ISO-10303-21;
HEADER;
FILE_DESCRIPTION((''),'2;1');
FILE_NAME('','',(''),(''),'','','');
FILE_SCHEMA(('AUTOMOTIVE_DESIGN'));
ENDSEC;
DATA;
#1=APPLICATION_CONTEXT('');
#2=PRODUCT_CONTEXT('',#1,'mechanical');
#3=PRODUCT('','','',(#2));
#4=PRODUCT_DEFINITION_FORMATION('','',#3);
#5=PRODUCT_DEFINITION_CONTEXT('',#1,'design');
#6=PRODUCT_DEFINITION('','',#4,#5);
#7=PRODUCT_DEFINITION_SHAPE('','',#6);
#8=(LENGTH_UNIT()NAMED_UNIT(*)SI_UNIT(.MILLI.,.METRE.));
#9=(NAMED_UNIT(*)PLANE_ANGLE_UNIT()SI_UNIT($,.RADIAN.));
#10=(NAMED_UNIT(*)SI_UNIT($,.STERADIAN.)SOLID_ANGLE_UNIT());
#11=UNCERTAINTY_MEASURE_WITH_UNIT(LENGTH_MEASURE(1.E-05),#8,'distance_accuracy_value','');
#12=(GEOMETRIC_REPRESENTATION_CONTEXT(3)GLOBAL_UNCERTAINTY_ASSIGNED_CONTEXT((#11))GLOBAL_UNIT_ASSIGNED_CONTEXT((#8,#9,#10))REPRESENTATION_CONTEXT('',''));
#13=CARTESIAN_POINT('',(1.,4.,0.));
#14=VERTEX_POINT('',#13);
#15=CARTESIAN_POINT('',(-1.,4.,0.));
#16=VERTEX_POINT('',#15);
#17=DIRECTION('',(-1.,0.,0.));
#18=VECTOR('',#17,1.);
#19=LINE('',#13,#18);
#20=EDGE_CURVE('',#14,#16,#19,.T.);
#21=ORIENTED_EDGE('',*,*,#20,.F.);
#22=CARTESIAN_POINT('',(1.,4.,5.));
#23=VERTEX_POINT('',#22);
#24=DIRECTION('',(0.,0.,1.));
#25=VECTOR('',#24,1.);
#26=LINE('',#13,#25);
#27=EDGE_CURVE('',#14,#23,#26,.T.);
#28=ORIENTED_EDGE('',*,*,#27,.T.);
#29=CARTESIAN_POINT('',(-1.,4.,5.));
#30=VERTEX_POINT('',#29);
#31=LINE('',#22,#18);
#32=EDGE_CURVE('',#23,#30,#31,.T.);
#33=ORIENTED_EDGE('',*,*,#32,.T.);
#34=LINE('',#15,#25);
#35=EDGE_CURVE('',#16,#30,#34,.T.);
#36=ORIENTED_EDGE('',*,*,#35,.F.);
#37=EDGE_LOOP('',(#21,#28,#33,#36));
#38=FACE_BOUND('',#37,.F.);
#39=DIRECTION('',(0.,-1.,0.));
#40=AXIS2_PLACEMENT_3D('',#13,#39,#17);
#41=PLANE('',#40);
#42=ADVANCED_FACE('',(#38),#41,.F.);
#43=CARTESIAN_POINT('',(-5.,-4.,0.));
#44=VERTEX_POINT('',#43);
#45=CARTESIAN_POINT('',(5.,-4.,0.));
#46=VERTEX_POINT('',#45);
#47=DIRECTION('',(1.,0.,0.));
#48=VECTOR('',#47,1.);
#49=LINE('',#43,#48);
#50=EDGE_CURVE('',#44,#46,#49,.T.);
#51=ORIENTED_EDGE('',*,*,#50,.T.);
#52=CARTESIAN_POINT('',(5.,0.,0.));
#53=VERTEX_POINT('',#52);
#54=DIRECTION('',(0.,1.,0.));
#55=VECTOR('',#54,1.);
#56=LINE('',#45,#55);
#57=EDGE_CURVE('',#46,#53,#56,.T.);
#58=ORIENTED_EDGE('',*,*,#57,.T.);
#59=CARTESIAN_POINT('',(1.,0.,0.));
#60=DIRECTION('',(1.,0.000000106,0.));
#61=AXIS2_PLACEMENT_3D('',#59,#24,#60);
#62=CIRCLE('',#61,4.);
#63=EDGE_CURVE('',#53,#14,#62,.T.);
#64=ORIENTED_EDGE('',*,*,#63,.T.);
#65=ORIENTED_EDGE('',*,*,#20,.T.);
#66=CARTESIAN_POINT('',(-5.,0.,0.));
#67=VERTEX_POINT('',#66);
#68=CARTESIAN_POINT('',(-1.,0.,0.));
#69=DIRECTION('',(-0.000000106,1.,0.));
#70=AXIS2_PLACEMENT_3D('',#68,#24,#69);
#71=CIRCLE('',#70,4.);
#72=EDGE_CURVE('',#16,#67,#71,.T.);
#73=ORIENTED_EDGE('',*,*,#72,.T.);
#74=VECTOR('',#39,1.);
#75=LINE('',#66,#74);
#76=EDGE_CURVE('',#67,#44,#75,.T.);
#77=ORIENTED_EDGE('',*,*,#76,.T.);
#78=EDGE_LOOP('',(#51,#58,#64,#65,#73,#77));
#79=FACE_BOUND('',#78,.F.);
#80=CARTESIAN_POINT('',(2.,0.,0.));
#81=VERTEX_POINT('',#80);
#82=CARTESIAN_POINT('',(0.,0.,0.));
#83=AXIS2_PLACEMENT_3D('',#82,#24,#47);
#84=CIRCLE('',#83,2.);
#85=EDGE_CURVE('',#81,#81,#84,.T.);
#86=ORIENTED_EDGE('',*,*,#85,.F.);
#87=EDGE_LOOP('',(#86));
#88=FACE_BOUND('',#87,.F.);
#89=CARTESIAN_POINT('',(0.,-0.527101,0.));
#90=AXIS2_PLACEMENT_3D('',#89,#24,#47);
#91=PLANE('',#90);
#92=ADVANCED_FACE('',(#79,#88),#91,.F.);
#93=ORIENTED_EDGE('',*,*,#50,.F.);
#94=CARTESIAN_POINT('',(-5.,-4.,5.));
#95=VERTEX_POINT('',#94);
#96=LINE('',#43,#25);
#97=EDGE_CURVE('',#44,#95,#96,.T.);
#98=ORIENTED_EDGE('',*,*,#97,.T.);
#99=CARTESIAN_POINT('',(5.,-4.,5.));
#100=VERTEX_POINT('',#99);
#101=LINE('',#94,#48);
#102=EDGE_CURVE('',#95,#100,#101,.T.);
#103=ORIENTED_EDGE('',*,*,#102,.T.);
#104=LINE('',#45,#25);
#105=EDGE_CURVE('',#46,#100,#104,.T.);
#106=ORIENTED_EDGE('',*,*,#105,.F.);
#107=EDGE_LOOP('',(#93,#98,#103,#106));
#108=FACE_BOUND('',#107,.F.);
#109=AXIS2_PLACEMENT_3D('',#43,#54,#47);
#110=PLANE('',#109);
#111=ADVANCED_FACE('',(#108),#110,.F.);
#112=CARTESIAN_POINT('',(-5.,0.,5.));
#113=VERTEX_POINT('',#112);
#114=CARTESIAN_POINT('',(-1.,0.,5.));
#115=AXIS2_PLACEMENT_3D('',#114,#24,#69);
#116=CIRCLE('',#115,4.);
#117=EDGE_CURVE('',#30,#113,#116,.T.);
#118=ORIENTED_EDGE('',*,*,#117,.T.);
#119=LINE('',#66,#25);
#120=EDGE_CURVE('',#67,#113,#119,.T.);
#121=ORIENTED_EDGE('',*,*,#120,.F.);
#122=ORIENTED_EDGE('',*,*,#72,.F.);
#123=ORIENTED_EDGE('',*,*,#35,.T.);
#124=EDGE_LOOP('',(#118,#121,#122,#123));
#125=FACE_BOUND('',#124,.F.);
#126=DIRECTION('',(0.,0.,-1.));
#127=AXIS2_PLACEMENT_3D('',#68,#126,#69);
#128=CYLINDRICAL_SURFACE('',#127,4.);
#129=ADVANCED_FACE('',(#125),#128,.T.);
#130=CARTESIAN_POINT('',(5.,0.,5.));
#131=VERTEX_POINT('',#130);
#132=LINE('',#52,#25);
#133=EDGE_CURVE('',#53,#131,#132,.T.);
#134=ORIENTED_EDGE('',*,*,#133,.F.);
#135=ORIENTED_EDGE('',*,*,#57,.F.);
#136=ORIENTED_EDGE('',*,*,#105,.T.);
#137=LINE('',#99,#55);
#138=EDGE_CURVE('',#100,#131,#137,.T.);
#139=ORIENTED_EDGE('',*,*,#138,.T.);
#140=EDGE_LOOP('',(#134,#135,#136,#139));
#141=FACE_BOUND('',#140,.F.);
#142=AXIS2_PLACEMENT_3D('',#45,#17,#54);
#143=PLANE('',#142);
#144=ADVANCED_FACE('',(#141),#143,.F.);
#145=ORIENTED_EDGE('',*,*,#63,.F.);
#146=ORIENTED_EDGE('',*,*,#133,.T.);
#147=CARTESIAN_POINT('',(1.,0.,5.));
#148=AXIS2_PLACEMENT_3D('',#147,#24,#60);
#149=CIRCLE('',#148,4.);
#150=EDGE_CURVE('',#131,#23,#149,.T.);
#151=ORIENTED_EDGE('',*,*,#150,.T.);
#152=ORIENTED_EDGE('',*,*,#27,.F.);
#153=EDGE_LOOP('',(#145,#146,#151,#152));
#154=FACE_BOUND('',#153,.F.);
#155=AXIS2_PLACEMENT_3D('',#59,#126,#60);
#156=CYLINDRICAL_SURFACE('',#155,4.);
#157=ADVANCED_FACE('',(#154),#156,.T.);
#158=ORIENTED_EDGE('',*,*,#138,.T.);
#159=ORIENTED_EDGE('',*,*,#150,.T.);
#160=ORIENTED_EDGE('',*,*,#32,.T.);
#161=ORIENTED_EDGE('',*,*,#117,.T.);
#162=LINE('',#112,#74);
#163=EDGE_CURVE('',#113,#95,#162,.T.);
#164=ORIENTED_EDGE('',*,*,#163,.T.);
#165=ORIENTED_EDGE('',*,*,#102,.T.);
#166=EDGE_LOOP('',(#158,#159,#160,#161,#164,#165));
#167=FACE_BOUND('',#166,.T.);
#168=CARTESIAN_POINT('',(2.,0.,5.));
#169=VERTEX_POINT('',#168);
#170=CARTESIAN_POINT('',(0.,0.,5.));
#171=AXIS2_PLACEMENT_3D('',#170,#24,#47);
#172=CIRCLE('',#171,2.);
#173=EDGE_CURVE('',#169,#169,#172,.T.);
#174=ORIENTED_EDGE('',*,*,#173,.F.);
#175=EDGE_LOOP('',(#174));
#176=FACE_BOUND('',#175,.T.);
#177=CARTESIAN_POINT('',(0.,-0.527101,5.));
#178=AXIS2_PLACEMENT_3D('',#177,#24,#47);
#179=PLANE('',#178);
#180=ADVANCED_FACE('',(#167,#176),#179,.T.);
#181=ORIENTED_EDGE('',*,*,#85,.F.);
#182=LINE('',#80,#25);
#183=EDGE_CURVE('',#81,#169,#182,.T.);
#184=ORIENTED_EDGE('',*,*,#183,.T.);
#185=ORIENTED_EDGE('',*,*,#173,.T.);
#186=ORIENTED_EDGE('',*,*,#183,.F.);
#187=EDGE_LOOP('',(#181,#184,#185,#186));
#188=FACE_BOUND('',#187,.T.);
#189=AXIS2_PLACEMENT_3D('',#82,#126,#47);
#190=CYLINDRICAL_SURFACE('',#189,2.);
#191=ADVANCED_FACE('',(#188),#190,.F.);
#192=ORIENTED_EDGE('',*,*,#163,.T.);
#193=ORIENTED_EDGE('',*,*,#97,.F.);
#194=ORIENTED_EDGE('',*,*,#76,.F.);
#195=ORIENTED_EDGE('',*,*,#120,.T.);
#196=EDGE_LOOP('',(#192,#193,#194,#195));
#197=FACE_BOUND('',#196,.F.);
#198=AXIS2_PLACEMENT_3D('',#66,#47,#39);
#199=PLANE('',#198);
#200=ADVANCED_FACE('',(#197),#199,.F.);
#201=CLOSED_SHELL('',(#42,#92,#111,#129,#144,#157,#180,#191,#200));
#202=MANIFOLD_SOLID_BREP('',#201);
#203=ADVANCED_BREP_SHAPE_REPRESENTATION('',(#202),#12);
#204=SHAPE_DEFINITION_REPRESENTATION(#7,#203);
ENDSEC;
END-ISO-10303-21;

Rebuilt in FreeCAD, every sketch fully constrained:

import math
import FreeCAD as App
import Part
import Sketcher

doc = App.newDocument("Part")
body = doc.addObject("PartDesign::Body", "Body")

sketch1 = body.newObject("Sketcher::SketchObject", "Sketch")
sketch1.AttachmentSupport = (doc.getObject("XY_Plane"), [""])
sketch1.MapMode = "FlatFace"
sketch1.addGeometry(Part.LineSegment(App.Vector(-5, -4, 0), App.Vector(5, -4, 0)), False)
sketch1.addGeometry(Part.LineSegment(App.Vector(5, -4, 0), App.Vector(5, 0, 0)), False)
sketch1.addGeometry(Part.ArcOfCircle(Part.Circle(App.Vector(1, 0, 0), App.Vector(0, 0, 1), 4), math.radians(0), math.radians(90)), False)
sketch1.addGeometry(Part.LineSegment(App.Vector(1, 4, 0), App.Vector(-1, 4, 0)), False)
sketch1.addGeometry(Part.ArcOfCircle(Part.Circle(App.Vector(-1, 0, 0), App.Vector(0, 0, 1), 4), math.radians(90), math.radians(180)), False)
sketch1.addGeometry(Part.LineSegment(App.Vector(-5, 0, 0), App.Vector(-5, -4, 0)), False)
sketch1.addGeometry(Part.Circle(App.Vector(0, 0, 0), App.Vector(0, 0, 1), 2), False)
sketch1.addConstraint(Sketcher.Constraint("Coincident", 0, 2, 1, 1))
sketch1.addConstraint(Sketcher.Constraint("Tangent", 1, 2, 2, 1))
sketch1.addConstraint(Sketcher.Constraint("Tangent", 2, 2, 3, 1))
sketch1.addConstraint(Sketcher.Constraint("Tangent", 3, 2, 4, 1))
sketch1.addConstraint(Sketcher.Constraint("Tangent", 4, 2, 5, 1))
sketch1.addConstraint(Sketcher.Constraint("Coincident", 5, 2, 0, 1))
sketch1.addConstraint(Sketcher.Constraint("Horizontal", 0))
sketch1.addConstraint(Sketcher.Constraint("Vertical", 1))
sketch1.addConstraint(Sketcher.Constraint("Horizontal", 3))
sketch1.addConstraint(Sketcher.Constraint("Vertical", 5))
sketch1.addConstraint(Sketcher.Constraint("Coincident", 6, 3, -1, 1))
sketch1.addConstraint(Sketcher.Constraint("Equal", 2, 4))
sketch1.addConstraint(Sketcher.Constraint("Symmetric", 2, 3, 4, 3, -1, 1))
sketch1.addConstraint(Sketcher.Constraint("Diameter", 6, 4.0))
sketch1.addConstraint(Sketcher.Constraint("Radius", 2, 4.0))
sketch1.addConstraint(Sketcher.Constraint("DistanceX", 0, 1, 0, 2, 10.0))
sketch1.addConstraint(Sketcher.Constraint("DistanceY", 1, 1, 1, 2, 4.0))
pad1 = body.newObject("PartDesign::Pad", "Pad")
pad1.Profile = sketch1
pad1.Length = 5

doc.recompute()
